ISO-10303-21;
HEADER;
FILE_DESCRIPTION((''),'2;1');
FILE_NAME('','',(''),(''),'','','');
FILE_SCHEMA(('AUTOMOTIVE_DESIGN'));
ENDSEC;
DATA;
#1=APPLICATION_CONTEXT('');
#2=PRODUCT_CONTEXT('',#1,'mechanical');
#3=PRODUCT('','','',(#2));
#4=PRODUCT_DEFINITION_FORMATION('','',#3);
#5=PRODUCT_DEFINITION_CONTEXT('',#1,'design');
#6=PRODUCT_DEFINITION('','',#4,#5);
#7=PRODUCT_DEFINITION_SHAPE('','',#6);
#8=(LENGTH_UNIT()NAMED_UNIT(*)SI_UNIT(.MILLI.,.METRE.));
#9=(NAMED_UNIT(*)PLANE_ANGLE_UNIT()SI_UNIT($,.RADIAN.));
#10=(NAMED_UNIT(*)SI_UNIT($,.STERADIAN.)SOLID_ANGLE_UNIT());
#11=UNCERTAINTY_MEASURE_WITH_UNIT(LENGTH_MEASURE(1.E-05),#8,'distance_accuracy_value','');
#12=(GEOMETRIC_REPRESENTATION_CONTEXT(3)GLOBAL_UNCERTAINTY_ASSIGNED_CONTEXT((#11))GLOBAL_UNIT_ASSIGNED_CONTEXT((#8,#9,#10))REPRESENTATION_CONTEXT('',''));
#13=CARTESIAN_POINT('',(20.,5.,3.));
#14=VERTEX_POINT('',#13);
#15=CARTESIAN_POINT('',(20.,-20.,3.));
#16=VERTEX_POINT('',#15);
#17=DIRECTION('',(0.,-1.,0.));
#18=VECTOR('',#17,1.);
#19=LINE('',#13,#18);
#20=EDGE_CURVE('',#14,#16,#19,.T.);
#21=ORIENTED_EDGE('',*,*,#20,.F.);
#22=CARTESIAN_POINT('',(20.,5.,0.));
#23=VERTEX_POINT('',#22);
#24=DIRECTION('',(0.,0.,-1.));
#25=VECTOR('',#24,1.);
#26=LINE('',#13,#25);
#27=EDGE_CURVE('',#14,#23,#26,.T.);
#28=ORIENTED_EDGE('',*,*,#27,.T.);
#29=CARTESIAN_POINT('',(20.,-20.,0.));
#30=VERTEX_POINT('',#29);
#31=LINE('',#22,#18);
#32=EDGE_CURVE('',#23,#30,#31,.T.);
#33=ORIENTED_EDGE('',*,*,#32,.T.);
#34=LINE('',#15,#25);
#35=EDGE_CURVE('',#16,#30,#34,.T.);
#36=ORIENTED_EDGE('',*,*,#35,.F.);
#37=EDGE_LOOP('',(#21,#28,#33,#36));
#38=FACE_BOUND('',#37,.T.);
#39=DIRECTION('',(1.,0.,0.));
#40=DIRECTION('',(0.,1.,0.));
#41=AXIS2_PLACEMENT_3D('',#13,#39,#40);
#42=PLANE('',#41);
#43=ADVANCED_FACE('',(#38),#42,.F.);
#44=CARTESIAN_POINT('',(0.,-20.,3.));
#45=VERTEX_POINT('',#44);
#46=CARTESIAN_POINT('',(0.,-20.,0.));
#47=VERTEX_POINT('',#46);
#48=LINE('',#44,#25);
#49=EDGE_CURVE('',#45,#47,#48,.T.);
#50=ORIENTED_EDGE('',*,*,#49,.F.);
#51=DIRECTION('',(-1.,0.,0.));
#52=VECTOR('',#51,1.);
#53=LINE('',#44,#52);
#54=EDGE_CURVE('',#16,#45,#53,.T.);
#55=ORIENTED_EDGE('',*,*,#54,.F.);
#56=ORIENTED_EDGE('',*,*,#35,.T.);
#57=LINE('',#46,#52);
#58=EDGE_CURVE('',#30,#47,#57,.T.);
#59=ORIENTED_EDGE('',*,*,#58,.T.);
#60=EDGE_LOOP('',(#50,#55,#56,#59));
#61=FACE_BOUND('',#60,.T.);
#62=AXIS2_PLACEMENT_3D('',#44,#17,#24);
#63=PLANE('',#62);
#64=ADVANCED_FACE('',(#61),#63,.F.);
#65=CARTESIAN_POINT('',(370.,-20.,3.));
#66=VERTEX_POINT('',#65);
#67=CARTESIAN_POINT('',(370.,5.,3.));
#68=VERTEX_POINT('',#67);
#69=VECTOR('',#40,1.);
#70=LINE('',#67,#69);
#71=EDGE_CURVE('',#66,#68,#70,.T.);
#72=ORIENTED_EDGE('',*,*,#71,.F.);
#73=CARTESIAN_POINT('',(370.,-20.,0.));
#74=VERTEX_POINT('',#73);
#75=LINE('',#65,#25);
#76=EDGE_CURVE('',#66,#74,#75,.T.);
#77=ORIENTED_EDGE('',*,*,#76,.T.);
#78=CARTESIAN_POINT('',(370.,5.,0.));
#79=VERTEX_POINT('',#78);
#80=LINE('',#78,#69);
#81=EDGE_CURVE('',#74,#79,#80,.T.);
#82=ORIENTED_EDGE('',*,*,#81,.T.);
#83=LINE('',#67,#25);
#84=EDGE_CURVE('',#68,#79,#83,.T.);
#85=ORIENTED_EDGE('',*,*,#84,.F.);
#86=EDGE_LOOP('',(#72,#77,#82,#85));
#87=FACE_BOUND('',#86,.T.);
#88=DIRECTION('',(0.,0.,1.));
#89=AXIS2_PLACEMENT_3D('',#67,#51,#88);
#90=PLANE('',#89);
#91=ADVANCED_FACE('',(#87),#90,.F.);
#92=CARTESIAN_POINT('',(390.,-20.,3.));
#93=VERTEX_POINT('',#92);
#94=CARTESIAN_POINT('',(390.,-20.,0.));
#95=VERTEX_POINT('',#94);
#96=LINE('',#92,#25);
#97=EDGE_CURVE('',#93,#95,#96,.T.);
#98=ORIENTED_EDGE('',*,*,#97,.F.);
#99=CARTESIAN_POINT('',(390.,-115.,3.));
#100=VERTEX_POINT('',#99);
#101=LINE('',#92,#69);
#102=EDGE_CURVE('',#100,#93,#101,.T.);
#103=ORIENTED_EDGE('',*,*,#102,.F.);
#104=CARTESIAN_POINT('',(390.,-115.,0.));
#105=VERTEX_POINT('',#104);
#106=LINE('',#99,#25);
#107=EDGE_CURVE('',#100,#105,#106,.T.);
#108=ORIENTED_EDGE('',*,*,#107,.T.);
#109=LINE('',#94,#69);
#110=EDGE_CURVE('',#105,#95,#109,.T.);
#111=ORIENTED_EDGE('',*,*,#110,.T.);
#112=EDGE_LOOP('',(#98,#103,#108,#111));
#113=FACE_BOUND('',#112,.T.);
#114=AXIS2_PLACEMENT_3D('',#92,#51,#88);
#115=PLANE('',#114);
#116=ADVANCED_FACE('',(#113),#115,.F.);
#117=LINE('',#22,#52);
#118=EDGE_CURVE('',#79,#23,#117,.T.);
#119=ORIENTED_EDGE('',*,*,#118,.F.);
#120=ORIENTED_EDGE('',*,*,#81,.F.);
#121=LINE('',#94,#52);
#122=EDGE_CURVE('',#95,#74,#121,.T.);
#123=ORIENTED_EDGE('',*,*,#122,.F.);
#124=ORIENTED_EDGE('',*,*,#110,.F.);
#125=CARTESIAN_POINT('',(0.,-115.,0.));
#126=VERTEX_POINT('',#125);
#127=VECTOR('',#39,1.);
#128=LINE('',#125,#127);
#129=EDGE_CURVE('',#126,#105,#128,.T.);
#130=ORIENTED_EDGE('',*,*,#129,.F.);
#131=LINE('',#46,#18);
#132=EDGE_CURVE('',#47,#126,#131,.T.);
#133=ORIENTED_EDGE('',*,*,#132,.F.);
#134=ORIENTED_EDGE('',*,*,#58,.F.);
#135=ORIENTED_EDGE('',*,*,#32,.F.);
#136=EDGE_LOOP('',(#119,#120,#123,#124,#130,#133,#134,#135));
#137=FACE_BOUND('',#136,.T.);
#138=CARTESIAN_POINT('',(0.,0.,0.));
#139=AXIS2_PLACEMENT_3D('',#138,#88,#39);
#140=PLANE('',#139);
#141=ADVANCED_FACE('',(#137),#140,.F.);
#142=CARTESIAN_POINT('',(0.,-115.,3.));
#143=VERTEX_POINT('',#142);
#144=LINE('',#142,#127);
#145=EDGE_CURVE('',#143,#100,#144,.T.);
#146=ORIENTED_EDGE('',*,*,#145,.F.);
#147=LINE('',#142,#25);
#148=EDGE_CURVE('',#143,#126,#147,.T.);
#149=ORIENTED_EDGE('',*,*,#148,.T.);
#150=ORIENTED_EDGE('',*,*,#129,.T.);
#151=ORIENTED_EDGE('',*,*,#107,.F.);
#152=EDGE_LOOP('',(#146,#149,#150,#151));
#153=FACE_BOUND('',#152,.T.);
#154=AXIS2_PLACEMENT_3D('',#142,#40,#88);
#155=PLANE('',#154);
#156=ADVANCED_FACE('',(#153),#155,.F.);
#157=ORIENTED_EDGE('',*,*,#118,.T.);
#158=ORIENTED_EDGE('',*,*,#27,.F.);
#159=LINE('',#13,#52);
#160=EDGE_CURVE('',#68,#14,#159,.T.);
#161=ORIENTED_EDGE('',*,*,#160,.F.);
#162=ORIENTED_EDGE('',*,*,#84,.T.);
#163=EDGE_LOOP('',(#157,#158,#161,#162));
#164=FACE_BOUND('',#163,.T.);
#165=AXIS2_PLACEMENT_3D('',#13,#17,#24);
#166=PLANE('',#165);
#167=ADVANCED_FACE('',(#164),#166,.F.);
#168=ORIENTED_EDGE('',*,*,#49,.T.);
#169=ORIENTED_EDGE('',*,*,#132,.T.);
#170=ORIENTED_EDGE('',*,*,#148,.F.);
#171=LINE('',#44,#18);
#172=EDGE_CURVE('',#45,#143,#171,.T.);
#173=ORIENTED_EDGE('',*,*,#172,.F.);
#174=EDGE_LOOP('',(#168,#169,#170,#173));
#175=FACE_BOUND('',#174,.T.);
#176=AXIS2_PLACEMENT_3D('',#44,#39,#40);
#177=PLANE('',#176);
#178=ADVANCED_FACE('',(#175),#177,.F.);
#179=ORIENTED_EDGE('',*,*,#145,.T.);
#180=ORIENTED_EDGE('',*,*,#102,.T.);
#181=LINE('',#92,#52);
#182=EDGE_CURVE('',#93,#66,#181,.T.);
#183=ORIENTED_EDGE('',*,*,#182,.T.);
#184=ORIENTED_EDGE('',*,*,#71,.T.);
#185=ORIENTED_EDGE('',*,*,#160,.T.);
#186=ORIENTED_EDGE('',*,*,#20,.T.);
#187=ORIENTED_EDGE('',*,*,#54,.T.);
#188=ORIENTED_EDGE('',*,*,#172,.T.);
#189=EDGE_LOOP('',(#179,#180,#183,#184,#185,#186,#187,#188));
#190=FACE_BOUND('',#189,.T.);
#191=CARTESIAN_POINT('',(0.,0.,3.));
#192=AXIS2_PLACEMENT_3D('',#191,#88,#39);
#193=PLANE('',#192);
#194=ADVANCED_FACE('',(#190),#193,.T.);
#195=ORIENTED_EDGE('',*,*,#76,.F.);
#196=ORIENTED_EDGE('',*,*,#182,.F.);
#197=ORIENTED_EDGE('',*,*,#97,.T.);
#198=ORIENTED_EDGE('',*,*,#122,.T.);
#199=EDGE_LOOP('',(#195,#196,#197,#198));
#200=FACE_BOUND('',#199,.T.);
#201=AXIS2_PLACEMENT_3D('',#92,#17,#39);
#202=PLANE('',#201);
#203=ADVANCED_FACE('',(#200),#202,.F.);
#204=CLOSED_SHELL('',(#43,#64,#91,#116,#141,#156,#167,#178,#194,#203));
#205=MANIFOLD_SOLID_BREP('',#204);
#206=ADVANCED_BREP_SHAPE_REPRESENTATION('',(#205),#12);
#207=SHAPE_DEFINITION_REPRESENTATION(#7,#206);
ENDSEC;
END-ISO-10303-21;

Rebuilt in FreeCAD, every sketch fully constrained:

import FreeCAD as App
import Part
import Sketcher

V = App.Vector
Q = App.Units.Quantity

doc = App.newDocument("Part")
body = doc.addObject("PartDesign::Body", "Body")

# Sketch on XY plane
sketch1 = doc.addObject("Sketcher::SketchObject", "Sketch")
body.addObject(sketch1)
sketch1.AttachmentSupport = (doc.XY_Plane, [""])
sketch1.MapMode = "FlatFace"
sketch1.addGeometry(Part.LineSegment(V(370, 5, 0), V(20, 5, 0)), False)
sketch1.addGeometry(Part.LineSegment(V(20, 5, 0), V(20, -20, 0)), False)
sketch1.addGeometry(Part.LineSegment(V(20, -20, 0), V(0, -20, 0)), False)
sketch1.addGeometry(Part.LineSegment(V(0, -20, 0), V(0, -115, 0)), False)
sketch1.addGeometry(Part.LineSegment(V(0, -115, 0), V(390, -115, 0)), False)
sketch1.addGeometry(Part.LineSegment(V(390, -115, 0), V(390, -20, 0)), False)
sketch1.addGeometry(Part.LineSegment(V(390, -20, 0), V(370, -20, 0)), False)
sketch1.addGeometry(Part.LineSegment(V(370, -20, 0), V(370, 5, 0)), False)
sketch1.addConstraint(Sketcher.Constraint("Coincident", 0, 2, 1, 1))
sketch1.addConstraint(Sketcher.Constraint("Coincident", 1, 2, 2, 1))
sketch1.addConstraint(Sketcher.Constraint("Coincident", 2, 2, 3, 1))
sketch1.addConstraint(Sketcher.Constraint("Coincident", 3, 2, 4, 1))
sketch1.addConstraint(Sketcher.Constraint("Coincident", 4, 2, 5, 1))
sketch1.addConstraint(Sketcher.Constraint("Coincident", 5, 2, 6, 1))
sketch1.addConstraint(Sketcher.Constraint("Coincident", 6, 2, 7, 1))
sketch1.addConstraint(Sketcher.Constraint("Coincident", 7, 2, 0, 1))
sketch1.addConstraint(Sketcher.Constraint("Horizontal", 0))
sketch1.addConstraint(Sketcher.Constraint("Vertical", 1))
sketch1.addConstraint(Sketcher.Constraint("Horizontal", 2))
sketch1.addConstraint(Sketcher.Constraint("Vertical", 3))
sketch1.addConstraint(Sketcher.Constraint("Horizontal", 4))
sketch1.addConstraint(Sketcher.Constraint("Vertical", 5))
sketch1.addConstraint(Sketcher.Constraint("Horizontal", 6))
sketch1.addConstraint(Sketcher.Constraint("Vertical", 7))
sketch1.addConstraint(Sketcher.Constraint("PointOnObject", 2, 2, -2))
sketch1.addConstraint(Sketcher.Constraint("Horizontal", 2, 2, 5, 2))
sketch1.addConstraint(Sketcher.Constraint("Equal", 2, 6))
sketch1.addConstraint(Sketcher.Constraint("DistanceX", 0, 2, 0, 1, Q("350 mm")))
sketch1.addConstraint(Sketcher.Constraint("DistanceX", 2, 2, 2, 1, Q("20 mm")))
sketch1.addConstraint(Sketcher.Constraint("DistanceY", 1, 2, 1, 1, Q("25 mm")))
sketch1.addConstraint(Sketcher.Constraint("DistanceY", 3, 2, 3, 1, Q("95 mm")))
sketch1.addConstraint(Sketcher.Constraint("DistanceY", -1, 1, 0, 2, Q("5 mm")))
pad1 = doc.addObject("PartDesign::Pad", "Pad")
body.addObject(pad1)
pad1.Profile = sketch1
pad1.Length = 3

doc.recompute()
